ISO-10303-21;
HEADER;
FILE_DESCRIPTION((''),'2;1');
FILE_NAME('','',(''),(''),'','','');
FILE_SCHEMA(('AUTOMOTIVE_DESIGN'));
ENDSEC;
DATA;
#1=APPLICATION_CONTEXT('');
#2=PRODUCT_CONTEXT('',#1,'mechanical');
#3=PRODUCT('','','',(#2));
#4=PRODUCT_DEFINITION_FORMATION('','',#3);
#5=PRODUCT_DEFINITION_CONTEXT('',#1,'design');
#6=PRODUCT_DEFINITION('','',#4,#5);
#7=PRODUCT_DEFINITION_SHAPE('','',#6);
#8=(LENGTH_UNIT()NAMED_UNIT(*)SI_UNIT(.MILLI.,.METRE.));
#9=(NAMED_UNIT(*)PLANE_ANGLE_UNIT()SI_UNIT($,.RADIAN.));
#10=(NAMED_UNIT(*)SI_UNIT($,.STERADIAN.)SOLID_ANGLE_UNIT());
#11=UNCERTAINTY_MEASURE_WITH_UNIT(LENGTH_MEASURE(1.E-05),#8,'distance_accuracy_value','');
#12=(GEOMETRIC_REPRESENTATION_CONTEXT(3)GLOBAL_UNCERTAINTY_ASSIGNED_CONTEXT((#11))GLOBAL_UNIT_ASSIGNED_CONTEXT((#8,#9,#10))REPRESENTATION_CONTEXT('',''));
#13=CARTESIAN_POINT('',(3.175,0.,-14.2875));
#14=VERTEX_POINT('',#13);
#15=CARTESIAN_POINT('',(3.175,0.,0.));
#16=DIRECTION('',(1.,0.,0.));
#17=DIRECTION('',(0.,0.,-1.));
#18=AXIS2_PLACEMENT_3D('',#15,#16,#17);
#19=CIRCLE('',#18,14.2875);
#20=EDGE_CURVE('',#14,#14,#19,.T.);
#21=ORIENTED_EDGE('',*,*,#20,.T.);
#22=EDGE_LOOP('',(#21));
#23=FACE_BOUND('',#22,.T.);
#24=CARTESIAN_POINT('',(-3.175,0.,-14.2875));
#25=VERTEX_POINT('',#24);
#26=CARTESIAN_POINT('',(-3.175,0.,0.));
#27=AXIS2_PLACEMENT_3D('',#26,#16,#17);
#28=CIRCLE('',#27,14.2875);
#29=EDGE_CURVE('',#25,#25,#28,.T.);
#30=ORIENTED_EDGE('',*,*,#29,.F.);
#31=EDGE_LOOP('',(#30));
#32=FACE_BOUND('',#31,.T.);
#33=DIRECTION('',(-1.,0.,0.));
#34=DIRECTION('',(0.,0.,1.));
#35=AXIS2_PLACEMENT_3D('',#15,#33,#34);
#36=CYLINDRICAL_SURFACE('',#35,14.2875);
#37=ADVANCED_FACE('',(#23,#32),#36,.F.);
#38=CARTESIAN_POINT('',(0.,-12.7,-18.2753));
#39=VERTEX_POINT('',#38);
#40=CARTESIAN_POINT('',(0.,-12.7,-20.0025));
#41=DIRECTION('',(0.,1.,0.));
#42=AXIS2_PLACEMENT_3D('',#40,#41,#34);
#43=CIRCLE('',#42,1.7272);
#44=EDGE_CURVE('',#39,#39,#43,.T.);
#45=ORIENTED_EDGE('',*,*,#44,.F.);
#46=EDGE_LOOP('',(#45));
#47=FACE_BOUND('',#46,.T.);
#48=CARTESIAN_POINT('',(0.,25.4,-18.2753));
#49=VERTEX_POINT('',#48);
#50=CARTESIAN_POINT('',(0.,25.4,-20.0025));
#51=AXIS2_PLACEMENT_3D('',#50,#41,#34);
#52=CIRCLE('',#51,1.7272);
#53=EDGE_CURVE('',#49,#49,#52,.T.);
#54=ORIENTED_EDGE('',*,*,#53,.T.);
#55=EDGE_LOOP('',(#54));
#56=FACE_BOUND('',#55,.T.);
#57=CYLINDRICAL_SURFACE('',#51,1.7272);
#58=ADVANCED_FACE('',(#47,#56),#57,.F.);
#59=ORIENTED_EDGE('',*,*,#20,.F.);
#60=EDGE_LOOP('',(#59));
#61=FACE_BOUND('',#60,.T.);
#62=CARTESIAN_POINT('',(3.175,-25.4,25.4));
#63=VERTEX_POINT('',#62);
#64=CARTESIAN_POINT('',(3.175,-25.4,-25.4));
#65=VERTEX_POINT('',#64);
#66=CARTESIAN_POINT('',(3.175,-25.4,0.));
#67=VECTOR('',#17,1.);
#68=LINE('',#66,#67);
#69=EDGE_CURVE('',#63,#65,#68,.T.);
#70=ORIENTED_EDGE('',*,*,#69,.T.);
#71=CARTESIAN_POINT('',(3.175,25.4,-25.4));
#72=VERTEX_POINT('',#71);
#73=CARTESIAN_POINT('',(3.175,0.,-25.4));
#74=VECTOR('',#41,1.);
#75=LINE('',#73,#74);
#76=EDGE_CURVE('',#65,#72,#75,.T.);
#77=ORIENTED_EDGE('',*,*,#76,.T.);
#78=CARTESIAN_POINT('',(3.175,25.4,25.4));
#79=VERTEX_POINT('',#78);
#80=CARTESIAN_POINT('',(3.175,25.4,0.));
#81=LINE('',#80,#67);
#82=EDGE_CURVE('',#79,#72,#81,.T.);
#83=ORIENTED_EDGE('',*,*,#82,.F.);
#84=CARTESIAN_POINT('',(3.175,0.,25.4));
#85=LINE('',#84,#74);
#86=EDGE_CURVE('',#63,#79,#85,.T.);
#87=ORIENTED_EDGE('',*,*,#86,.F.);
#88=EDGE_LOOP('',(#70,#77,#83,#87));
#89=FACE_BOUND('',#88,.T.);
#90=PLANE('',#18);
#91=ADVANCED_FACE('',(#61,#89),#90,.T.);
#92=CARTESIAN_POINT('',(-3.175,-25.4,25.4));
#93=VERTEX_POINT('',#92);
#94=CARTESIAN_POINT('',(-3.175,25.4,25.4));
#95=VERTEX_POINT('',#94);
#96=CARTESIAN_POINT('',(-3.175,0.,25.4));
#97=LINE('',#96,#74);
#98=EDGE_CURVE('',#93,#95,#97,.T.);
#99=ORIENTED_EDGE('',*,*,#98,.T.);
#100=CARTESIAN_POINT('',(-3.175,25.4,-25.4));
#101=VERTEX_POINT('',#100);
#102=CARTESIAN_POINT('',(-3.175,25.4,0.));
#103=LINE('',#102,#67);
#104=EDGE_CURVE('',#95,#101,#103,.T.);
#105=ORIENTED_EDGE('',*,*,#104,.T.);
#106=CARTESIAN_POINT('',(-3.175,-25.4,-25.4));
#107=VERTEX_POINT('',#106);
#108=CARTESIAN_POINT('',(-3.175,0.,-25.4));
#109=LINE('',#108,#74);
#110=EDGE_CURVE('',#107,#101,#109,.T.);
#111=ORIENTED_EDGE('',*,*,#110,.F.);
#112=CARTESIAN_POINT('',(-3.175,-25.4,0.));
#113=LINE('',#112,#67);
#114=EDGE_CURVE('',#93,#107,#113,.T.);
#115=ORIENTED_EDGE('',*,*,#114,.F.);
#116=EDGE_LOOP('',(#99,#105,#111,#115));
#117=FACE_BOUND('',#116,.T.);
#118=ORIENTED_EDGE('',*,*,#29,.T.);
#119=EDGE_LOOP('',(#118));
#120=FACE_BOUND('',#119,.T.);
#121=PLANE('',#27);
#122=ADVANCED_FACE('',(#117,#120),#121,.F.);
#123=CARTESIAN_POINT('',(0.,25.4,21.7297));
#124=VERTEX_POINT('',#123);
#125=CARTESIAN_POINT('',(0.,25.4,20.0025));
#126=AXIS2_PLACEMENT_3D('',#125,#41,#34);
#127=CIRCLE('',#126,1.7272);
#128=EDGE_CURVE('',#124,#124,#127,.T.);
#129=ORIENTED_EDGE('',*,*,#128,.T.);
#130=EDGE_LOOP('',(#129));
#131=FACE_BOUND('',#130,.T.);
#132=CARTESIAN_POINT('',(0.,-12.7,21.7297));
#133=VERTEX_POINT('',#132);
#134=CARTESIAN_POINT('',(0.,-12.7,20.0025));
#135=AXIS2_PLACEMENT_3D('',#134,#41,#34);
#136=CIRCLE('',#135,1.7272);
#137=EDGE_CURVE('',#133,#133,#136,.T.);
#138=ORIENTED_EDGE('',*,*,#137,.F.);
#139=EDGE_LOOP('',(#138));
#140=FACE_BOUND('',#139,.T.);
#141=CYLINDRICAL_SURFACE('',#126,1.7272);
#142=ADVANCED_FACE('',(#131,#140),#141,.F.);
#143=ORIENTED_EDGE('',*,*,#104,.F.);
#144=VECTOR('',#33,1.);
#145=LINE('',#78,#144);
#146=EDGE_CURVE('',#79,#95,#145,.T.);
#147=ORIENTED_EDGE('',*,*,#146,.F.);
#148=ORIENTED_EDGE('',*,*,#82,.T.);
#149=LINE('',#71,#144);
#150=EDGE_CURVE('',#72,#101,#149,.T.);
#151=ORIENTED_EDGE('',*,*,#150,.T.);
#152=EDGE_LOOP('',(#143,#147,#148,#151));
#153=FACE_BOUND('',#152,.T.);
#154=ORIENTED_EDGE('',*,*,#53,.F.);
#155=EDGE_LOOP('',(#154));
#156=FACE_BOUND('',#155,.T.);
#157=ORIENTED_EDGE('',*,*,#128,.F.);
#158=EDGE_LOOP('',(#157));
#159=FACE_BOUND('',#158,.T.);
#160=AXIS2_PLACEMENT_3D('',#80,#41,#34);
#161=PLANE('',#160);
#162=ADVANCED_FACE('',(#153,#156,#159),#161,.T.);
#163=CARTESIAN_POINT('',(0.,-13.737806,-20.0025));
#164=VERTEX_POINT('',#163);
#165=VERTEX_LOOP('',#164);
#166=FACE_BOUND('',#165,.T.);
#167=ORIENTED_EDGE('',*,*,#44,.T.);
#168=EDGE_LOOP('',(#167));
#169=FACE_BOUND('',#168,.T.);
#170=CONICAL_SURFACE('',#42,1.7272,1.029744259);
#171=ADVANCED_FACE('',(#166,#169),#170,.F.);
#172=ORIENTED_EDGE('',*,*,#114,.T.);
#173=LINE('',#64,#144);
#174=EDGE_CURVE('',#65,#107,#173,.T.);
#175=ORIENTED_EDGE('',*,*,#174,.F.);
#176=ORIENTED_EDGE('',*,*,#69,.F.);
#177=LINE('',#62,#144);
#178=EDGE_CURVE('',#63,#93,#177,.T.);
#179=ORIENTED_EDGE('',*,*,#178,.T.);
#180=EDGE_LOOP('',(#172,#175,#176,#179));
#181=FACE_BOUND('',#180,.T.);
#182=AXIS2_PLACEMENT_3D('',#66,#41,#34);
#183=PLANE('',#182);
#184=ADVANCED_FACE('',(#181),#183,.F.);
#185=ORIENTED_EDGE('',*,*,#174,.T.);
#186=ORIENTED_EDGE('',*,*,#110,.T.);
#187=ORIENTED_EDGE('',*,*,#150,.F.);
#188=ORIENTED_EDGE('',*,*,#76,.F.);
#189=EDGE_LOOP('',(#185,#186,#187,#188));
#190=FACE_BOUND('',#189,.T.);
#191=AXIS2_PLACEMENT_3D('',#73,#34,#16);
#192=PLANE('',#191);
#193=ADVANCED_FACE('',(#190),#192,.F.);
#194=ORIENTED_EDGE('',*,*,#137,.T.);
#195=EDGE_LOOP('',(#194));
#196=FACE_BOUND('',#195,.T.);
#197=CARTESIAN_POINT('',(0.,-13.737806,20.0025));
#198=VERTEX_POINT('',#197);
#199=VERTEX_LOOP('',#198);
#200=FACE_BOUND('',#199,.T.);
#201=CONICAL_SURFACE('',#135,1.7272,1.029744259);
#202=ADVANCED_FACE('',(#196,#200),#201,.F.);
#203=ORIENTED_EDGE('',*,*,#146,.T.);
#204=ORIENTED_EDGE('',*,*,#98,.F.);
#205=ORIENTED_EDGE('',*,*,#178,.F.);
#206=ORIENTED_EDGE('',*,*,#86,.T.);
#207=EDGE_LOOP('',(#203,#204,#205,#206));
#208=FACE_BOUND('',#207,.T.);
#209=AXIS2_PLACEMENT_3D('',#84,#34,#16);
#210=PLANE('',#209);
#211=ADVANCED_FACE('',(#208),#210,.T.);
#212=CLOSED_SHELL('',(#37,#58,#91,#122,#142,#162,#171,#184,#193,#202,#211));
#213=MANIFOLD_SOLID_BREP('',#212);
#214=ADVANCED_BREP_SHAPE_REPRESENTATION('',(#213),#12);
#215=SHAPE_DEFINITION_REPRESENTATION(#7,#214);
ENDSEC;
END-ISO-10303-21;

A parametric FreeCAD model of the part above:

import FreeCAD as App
import Part
import Sketcher

V = App.Vector
Q = App.Units.Quantity


def add_polygon(sketch, points):
    """Adds a closed chain of lines whose ends are joined by coincident constraints."""
    first, n = sketch.GeometryCount, len(points)
    for a, b in zip(points, points[1:] + points[:1]):
        sketch.addGeometry(Part.LineSegment(App.Vector(*a, 0), App.Vector(*b, 0)), False)
    for i in range(n):
        sketch.addConstraint(Sketcher.Constraint("Coincident", first + i, 2, first + (i + 1) % n, 1))

doc = App.newDocument("Part")
body = doc.addObject("PartDesign::Body", "Body")

sketch1 = doc.addObject("Sketcher::SketchObject", "Sketch")
body.addObject(sketch1)
sketch1.AttachmentSupport = (doc.YZ_Plane, [""])
sketch1.MapMode = "FlatFace"
add_polygon(sketch1, [(25.4, 25.4), (-25.4, 25.4), (-25.4, -25.4), (25.4, -25.4)])
sketch1.addGeometry(Part.Circle(V(0, 0, 0), V(0, 0, 1), 14.2875), False)
sketch1.addConstraint(Sketcher.Constraint("Horizontal", 0))
sketch1.addConstraint(Sketcher.Constraint("Vertical", 1))
sketch1.addConstraint(Sketcher.Constraint("Horizontal", 2))
sketch1.addConstraint(Sketcher.Constraint("Vertical", 3))
sketch1.addConstraint(Sketcher.Constraint("Coincident", 4, 3, -1, 1))
sketch1.addConstraint(Sketcher.Constraint("Symmetric", 0, 2, 2, 2, -1, 1))
sketch1.addConstraint(Sketcher.Constraint("Equal", 2, 1))
sketch1.addConstraint(Sketcher.Constraint("DistanceX", 0, 2, 0, 1, Q("2 in")))
sketch1.addConstraint(Sketcher.Constraint("Diameter", 4, Q("1.125 in")))
pad1 = doc.addObject("PartDesign::Pad", "Pad")
body.addObject(pad1)
pad1.Profile = sketch1
pad1.Length = Q("0.25 in")
pad1.Midplane = True

sketch2 = doc.addObject("Sketcher::SketchObject", "Sketch001")
body.addObject(sketch2)
sketch2.AttachmentSupport = (doc.XZ_Plane, [""])
sketch2.MapMode = "FlatFace"
sketch2.AttachmentOffset = App.Placement(V(0, 0, -1 * 25.4), App.Rotation())
sketch2.addGeometry(Part.Circle(V(0, 20.0025, 0), V(0, 0, 1), 1.7272), False)
sketch2.addGeometry(Part.Circle(V(0, -20.0025, 0), V(0, 0, 1), 1.7272), False)
sketch2.addConstraint(Sketcher.Constraint("Equal", 0, 1))
sketch2.addConstraint(Sketcher.Constraint("Symmetric", 0, 3, 1, 3, -1, 1))
sketch2.addConstraint(Sketcher.Constraint("PointOnObject", 0, 3, -2))
sketch2.addConstraint(Sketcher.Constraint("Diameter", 0, Q("0.136 in")))
sketch2.addConstraint(Sketcher.Constraint("DistanceY", 1, 3, 0, 3, Q("1.575 in")))
doc.recompute()
hole = doc.addObject("PartDesign::Hole", "Hole")
body.addObject(hole)
hole.Profile = sketch2
hole.ThreadType = "None"
hole.Diameter = Q("0.136 in")
hole.DepthType = "Dimension"
hole.Depth = Q("1.5 in")
hole.DrillPoint = "Angled"
hole.DrillPointAngle = 118
hole.Reversed = True

doc.recompute()
